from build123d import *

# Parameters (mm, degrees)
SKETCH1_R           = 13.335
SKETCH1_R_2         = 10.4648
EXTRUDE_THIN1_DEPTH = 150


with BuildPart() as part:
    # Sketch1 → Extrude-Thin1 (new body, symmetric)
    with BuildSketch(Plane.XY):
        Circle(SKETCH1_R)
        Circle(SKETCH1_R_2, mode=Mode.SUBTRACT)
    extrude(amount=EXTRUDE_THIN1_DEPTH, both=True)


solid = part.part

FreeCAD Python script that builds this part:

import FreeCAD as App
import Part
import Sketcher

V = App.Vector
Q = App.Units.Quantity

doc = App.newDocument("Part")
params = doc.addObject("Spreadsheet::Sheet", "Params")
for row, (alias, value) in enumerate([
    ("sketch1_diameter", "1.05 in"),
    ("sketch1_diameter2", "0.824 in"),
    ("pad1_length", "300 mm"),
], start=1):
    params.set(f"A{row}", alias)
    params.set(f"B{row}", "=" + value)
    params.setAlias(f"B{row}", alias)

body = doc.addObject("PartDesign::Body", "Body")

sketch1 = body.newObject("Sketcher::SketchObject", "Sketch")
sketch1.AttachmentSupport = (doc.getObject("XY_Plane"), [""])
sketch1.MapMode = "FlatFace"
sketch1.addGeometry(Part.Circle(V(0, 0, 0), V(0, 0, 1), 13.335), False)
sketch1.addGeometry(Part.Circle(V(0, 0, 0), V(0, 0, 1), 10.4648), False)
sketch1.addConstraint(Sketcher.Constraint("Coincident", 0, 3, -1, 1))
sketch1.addConstraint(Sketcher.Constraint("Coincident", 1, 3, -1, 1))
sketch1.addConstraint(Sketcher.Constraint("Diameter", 0, Q("1.05 in")))
sketch1.addConstraint(Sketcher.Constraint("Diameter", 1, Q("0.824 in")))
sketch1.setExpression("Constraints[2]", "Params.sketch1_diameter")
sketch1.setExpression("Constraints[3]", "Params.sketch1_diameter2")
pad1 = body.newObject("PartDesign::Pad", "Pad")
pad1.Profile = sketch1
pad1.setExpression("Length", "Params.pad1_length")
pad1.Midplane = True

doc.recompute()
